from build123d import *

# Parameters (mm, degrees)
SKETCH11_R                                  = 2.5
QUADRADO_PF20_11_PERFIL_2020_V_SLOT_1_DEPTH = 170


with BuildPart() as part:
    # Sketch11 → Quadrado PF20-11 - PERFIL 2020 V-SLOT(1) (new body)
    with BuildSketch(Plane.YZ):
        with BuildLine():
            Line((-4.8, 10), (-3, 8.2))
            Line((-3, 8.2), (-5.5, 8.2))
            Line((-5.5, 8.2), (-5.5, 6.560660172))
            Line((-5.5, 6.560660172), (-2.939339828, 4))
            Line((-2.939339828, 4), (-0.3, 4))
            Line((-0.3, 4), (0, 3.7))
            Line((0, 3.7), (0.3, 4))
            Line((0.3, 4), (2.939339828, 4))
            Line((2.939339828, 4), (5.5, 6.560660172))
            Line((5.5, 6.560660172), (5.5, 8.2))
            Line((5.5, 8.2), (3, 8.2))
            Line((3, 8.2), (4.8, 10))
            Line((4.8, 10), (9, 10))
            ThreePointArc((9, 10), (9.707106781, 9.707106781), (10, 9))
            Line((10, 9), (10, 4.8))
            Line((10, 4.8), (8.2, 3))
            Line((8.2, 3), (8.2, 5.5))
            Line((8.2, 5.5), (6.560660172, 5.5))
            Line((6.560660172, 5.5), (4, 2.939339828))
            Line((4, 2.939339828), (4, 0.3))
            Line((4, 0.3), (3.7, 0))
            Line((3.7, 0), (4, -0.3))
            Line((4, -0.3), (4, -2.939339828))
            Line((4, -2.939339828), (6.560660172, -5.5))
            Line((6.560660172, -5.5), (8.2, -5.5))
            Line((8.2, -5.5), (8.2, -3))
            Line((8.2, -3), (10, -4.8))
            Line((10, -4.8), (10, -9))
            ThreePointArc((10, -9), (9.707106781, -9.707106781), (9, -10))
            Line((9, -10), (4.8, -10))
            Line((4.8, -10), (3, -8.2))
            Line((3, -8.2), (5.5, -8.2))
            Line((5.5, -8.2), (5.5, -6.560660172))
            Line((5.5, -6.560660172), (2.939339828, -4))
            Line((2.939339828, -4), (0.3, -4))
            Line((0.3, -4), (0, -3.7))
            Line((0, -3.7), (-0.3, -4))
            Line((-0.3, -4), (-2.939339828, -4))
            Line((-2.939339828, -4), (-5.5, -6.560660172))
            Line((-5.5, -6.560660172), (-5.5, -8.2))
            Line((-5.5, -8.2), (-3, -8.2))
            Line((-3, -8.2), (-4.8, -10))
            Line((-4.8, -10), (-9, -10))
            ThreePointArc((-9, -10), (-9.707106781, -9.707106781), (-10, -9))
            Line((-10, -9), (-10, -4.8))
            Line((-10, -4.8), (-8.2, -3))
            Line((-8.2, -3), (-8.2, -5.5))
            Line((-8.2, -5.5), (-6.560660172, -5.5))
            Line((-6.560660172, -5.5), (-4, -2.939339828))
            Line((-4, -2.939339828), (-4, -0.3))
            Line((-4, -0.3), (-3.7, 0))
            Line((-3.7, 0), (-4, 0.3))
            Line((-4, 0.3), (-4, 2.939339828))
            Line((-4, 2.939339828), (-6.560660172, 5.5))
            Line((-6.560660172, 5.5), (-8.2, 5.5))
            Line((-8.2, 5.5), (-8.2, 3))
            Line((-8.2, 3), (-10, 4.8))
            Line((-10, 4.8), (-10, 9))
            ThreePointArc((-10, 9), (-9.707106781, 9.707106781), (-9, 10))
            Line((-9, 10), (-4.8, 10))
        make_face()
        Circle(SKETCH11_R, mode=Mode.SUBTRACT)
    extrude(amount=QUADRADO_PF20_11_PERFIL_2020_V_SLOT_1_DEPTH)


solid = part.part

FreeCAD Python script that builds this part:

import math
import FreeCAD as App
import Part
import Sketcher
Q = App.Units.Quantity

doc = App.newDocument("Part")
body = doc.addObject("PartDesign::Body", "Body")

# Sketch on YZ plane
sketch1 = doc.addObject("Sketcher::SketchObject", "Sketch")
body.addObject(sketch1)
sketch1.AttachmentSupport = (doc.YZ_Plane, [""])
sketch1.MapMode = "FlatFace"
sketch1.addGeometry([
    Part.LineSegment(App.Vector(-3, 8.2, 0), App.Vector(-4.8, 10, 0)),  # 0
    Part.LineSegment(App.Vector(-4.8, 10, 0), App.Vector(-9, 10, 0)),  # 1
    Part.ArcOfCircle(Part.Circle(App.Vector(-9, 9, 0), App.Vector(0, 0, 1), 1), math.radians(90), math.radians(180)),  # 2
    Part.LineSegment(App.Vector(-10, 9, 0), App.Vector(-10, 4.8, 0)),  # 3
    Part.LineSegment(App.Vector(-10, 4.8, 0), App.Vector(-8.2, 3, 0)),  # 4
    Part.LineSegment(App.Vector(-8.2, 3, 0), App.Vector(-8.2, 5.5, 0)),  # 5
    Part.LineSegment(App.Vector(-8.2, 5.5, 0), App.Vector(-6.56066, 5.5, 0)),  # 6
    Part.LineSegment(App.Vector(-6.56066, 5.5, 0), App.Vector(-4, 2.93934, 0)),  # 7
    Part.LineSegment(App.Vector(-4, 2.93934, 0), App.Vector(-4, 0.3, 0)),  # 8
    Part.LineSegment(App.Vector(-4, 0.3, 0), App.Vector(-3.7, 0, 0)),  # 9
    Part.LineSegment(App.Vector(-3.7, 0, 0), App.Vector(-4, -0.3, 0)),  # 10
    Part.LineSegment(App.Vector(-4, -0.3, 0), App.Vector(-4, -2.93934, 0)),  # 11
    Part.LineSegment(App.Vector(-4, -2.93934, 0), App.Vector(-6.56066, -5.5, 0)),  # 12
    Part.LineSegment(App.Vector(-6.56066, -5.5, 0), App.Vector(-8.2, -5.5, 0)),  # 13
    Part.LineSegment(App.Vector(-8.2, -5.5, 0), App.Vector(-8.2, -3, 0)),  # 14
    Part.LineSegment(App.Vector(-8.2, -3, 0), App.Vector(-10, -4.8, 0)),  # 15
    Part.LineSegment(App.Vector(-10, -4.8, 0), App.Vector(-10, -9, 0)),  # 16
    Part.ArcOfCircle(Part.Circle(App.Vector(-9, -9, 0), App.Vector(0, 0, 1), 1), math.radians(-180), math.radians(-90)),  # 17
    Part.LineSegment(App.Vector(-9, -10, 0), App.Vector(-4.8, -10, 0)),  # 18
    Part.LineSegment(App.Vector(-4.8, -10, 0), App.Vector(-3, -8.2, 0)),  # 19
    Part.LineSegment(App.Vector(-3, -8.2, 0), App.Vector(-5.5, -8.2, 0)),  # 20
    Part.LineSegment(App.Vector(-5.5, -8.2, 0), App.Vector(-5.5, -6.56066, 0)),  # 21
    Part.LineSegment(App.Vector(-5.5, -6.56066, 0), App.Vector(-2.93934, -4, 0)),  # 22
    Part.LineSegment(App.Vector(-2.93934, -4, 0), App.Vector(-0.3, -4, 0)),  # 23
    Part.LineSegment(App.Vector(-0.3, -4, 0), App.Vector(0, -3.7, 0)),  # 24
    Part.LineSegment(App.Vector(0, -3.7, 0), App.Vector(0.3, -4, 0)),  # 25
    Part.LineSegment(App.Vector(0.3, -4, 0), App.Vector(2.93934, -4, 0)),  # 26
    Part.LineSegment(App.Vector(2.93934, -4, 0), App.Vector(5.5, -6.56066, 0)),  # 27
    Part.LineSegment(App.Vector(5.5, -6.56066, 0), App.Vector(5.5, -8.2, 0)),  # 28
    Part.LineSegment(App.Vector(5.5, -8.2, 0), App.Vector(3, -8.2, 0)),  # 29
    Part.LineSegment(App.Vector(3, -8.2, 0), App.Vector(4.8, -10, 0)),  # 30
    Part.LineSegment(App.Vector(4.8, -10, 0), App.Vector(9, -10, 0)),  # 31
    Part.ArcOfCircle(Part.Circle(App.Vector(9, -9, 0), App.Vector(0, 0, 1), 1), math.radians(-90), math.radians(0)),  # 32
    Part.LineSegment(App.Vector(10, -9, 0), App.Vector(10, -4.8, 0)),  # 33
    Part.LineSegment(App.Vector(10, -4.8, 0), App.Vector(8.2, -3, 0)),  # 34
    Part.LineSegment(App.Vector(8.2, -3, 0), App.Vector(8.2, -5.5, 0)),  # 35
    Part.LineSegment(App.Vector(8.2, -5.5, 0), App.Vector(6.56066, -5.5, 0)),  # 36
    Part.LineSegment(App.Vector(6.56066, -5.5, 0), App.Vector(4, -2.93934, 0)),  # 37
    Part.LineSegment(App.Vector(4, -2.93934, 0), App.Vector(4, -0.3, 0)),  # 38
    Part.LineSegment(App.Vector(4, -0.3, 0), App.Vector(3.7, 0, 0)),  # 39
    Part.LineSegment(App.Vector(3.7, 0, 0), App.Vector(4, 0.3, 0)),  # 40
    Part.LineSegment(App.Vector(4, 0.3, 0), App.Vector(4, 2.93934, 0)),  # 41
    Part.LineSegment(App.Vector(4, 2.93934, 0), App.Vector(6.56066, 5.5, 0)),  # 42
    Part.LineSegment(App.Vector(6.56066, 5.5, 0), App.Vector(8.2, 5.5, 0)),  # 43
    Part.LineSegment(App.Vector(8.2, 5.5, 0), App.Vector(8.2, 3, 0)),  # 44
    Part.LineSegment(App.Vector(8.2, 3, 0), App.Vector(10, 4.8, 0)),  # 45
    Part.LineSegment(App.Vector(10, 4.8, 0), App.Vector(10, 9, 0)),  # 46
    Part.ArcOfCircle(Part.Circle(App.Vector(9, 9, 0), App.Vector(0, 0, 1), 1), math.radians(0), math.radians(90)),  # 47
    Part.LineSegment(App.Vector(9, 10, 0), App.Vector(4.8, 10, 0)),  # 48
    Part.LineSegment(App.Vector(4.8, 10, 0), App.Vector(3, 8.2, 0)),  # 49
    Part.LineSegment(App.Vector(3, 8.2, 0), App.Vector(5.5, 8.2, 0)),  # 50
    Part.LineSegment(App.Vector(5.5, 8.2, 0), App.Vector(5.5, 6.56066, 0)),  # 51
    Part.LineSegment(App.Vector(5.5, 6.56066, 0), App.Vector(2.93934, 4, 0)),  # 52
    Part.LineSegment(App.Vector(2.93934, 4, 0), App.Vector(0.3, 4, 0)),  # 53
    Part.LineSegment(App.Vector(0.3, 4, 0), App.Vector(0, 3.7, 0)),  # 54
    Part.LineSegment(App.Vector(0, 3.7, 0), App.Vector(-0.3, 4, 0)),  # 55
    Part.LineSegment(App.Vector(-0.3, 4, 0), App.Vector(-2.93934, 4, 0)),  # 56
    Part.LineSegment(App.Vector(-2.93934, 4, 0), App.Vector(-5.5, 6.56066, 0)),  # 57
    Part.LineSegment(App.Vector(-5.5, 6.56066, 0), App.Vector(-5.5, 8.2, 0)),  # 58
    Part.LineSegment(App.Vector(-5.5, 8.2, 0), App.Vector(-3, 8.2, 0)),  # 59
    Part.Circle(App.Vector(0, 0, 0), App.Vector(0, 0, 1), 2.5),  # 60
], False)
sketch1.addConstraint([
    Sketcher.Constraint("Coincident", 0, 2, 1, 1),
    Sketcher.Constraint("Tangent", 1, 2, 2, 1),
    Sketcher.Constraint("Tangent", 2, 2, 3, 1),
    Sketcher.Constraint("Coincident", 3, 2, 4, 1),
    Sketcher.Constraint("Coincident", 4, 2, 5, 1),
    Sketcher.Constraint("Coincident", 5, 2, 6, 1),
    Sketcher.Constraint("Coincident", 6, 2, 7, 1),
    Sketcher.Constraint("Coincident", 7, 2, 8, 1),
    Sketcher.Constraint("Coincident", 8, 2, 9, 1),
    Sketcher.Constraint("Coincident", 9, 2, 10, 1),
    Sketcher.Constraint("Coincident", 10, 2, 11, 1),
    Sketcher.Constraint("Coincident", 11, 2, 12, 1),
    Sketcher.Constraint("Coincident", 12, 2, 13, 1),
    Sketcher.Constraint("Coincident", 13, 2, 14, 1),
    Sketcher.Constraint("Coincident", 14, 2, 15, 1),
    Sketcher.Constraint("Coincident", 15, 2, 16, 1),
    Sketcher.Constraint("Tangent", 16, 2, 17, 1),
    Sketcher.Constraint("Tangent", 17, 2, 18, 1),
    Sketcher.Constraint("Coincident", 18, 2, 19, 1),
    Sketcher.Constraint("Coincident", 19, 2, 20, 1),
    Sketcher.Constraint("Coincident", 20, 2, 21, 1),
    Sketcher.Constraint("Coincident", 21, 2, 22, 1),
    Sketcher.Constraint("Coincident", 22, 2, 23, 1),
    Sketcher.Constraint("Coincident", 23, 2, 24, 1),
    Sketcher.Constraint("Coincident", 24, 2, 25, 1),
    Sketcher.Constraint("Coincident", 25, 2, 26, 1),
    Sketcher.Constraint("Coincident", 26, 2, 27, 1),
    Sketcher.Constraint("Coincident", 27, 2, 28, 1),
    Sketcher.Constraint("Coincident", 28, 2, 29, 1),
    Sketcher.Constraint("Coincident", 29, 2, 30, 1),
    Sketcher.Constraint("Coincident", 30, 2, 31, 1),
    Sketcher.Constraint("Tangent", 31, 2, 32, 1),
    Sketcher.Constraint("Tangent", 32, 2, 33, 1),
    Sketcher.Constraint("Coincident", 33, 2, 34, 1),
    Sketcher.Constraint("Coincident", 34, 2, 35, 1),
    Sketcher.Constraint("Coincident", 35, 2, 36, 1),
    Sketcher.Constraint("Coincident", 36, 2, 37, 1),
    Sketcher.Constraint("Coincident", 37, 2, 38, 1),
    Sketcher.Constraint("Coincident", 38, 2, 39, 1),
    Sketcher.Constraint("Coincident", 39, 2, 40, 1),
    Sketcher.Constraint("Coincident", 40, 2, 41, 1),
    Sketcher.Constraint("Coincident", 41, 2, 42, 1),
    Sketcher.Constraint("Coincident", 42, 2, 43, 1),
    Sketcher.Constraint("Coincident", 43, 2, 44, 1),
    Sketcher.Constraint("Coincident", 44, 2, 45, 1),
    Sketcher.Constraint("Coincident", 45, 2, 46, 1),
    Sketcher.Constraint("Tangent", 46, 2, 47, 1),
    Sketcher.Constraint("Tangent", 47, 2, 48, 1),
    Sketcher.Constraint("Coincident", 48, 2, 49, 1),
    Sketcher.Constraint("Coincident", 49, 2, 50, 1),
    Sketcher.Constraint("Coincident", 50, 2, 51, 1),
    Sketcher.Constraint("Coincident", 51, 2, 52, 1),
    Sketcher.Constraint("Coincident", 52, 2, 53, 1),
    Sketcher.Constraint("Coincident", 53, 2, 54, 1),
    Sketcher.Constraint("Coincident", 54, 2, 55, 1),
    Sketcher.Constraint("Coincident", 55, 2, 56, 1),
    Sketcher.Constraint("Coincident", 56, 2, 57, 1),
    Sketcher.Constraint("Coincident", 57, 2, 58, 1),
    Sketcher.Constraint("Coincident", 58, 2, 59, 1),
    Sketcher.Constraint("Coincident", 59, 2, 0, 1),
    Sketcher.Constraint("Horizontal", 1),
    Sketcher.Constraint("Vertical", 3),
    Sketcher.Constraint("Vertical", 5),
    Sketcher.Constraint("Horizontal", 6),
    Sketcher.Constraint("Vertical", 8),
    Sketcher.Constraint("Vertical", 11),
    Sketcher.Constraint("Horizontal", 13),
    Sketcher.Constraint("Vertical", 14),
    Sketcher.Constraint("Vertical", 16),
    Sketcher.Constraint("Horizontal", 18),
    Sketcher.Constraint("Horizontal", 20),
    Sketcher.Constraint("Vertical", 21),
    Sketcher.Constraint("Horizontal", 23),
    Sketcher.Constraint("Horizontal", 26),
    Sketcher.Constraint("Vertical", 28),
    Sketcher.Constraint("Horizontal", 29),
    Sketcher.Constraint("Horizontal", 31),
    Sketcher.Constraint("Vertical", 33),
    Sketcher.Constraint("Vertical", 35),
    Sketcher.Constraint("Horizontal", 36),
    Sketcher.Constraint("Vertical", 38),
    Sketcher.Constraint("Vertical", 41),
    Sketcher.Constraint("Horizontal", 43),
    Sketcher.Constraint("Vertical", 44),
    Sketcher.Constraint("Vertical", 46),
    Sketcher.Constraint("Horizontal", 48),
    Sketcher.Constraint("Horizontal", 50),
    Sketcher.Constraint("Vertical", 51),
    Sketcher.Constraint("Horizontal", 53),
    Sketcher.Constraint("Horizontal", 56),
    Sketcher.Constraint("Vertical", 58),
    Sketcher.Constraint("Horizontal", 59),
    Sketcher.Constraint("Coincident", 60, 3, -1, 1),
    Sketcher.Constraint("Equal", 2, 17),
    Sketcher.Constraint("Equal", 17, 32),
    Sketcher.Constraint("Equal", 32, 47),
    Sketcher.Constraint("Symmetric", 2, 3, 32, 3, -1, 1),
    Sketcher.Constraint("Symmetric", 17, 3, 47, 3, -1, 1),
    Sketcher.Constraint("Symmetric", 4, 2, 34, 2, -1, 1),
    Sketcher.Constraint("Symmetric", 6, 2, 36, 2, -1, 1),
    Sketcher.Constraint("Symmetric", 7, 2, 37, 2, -1, 1),
    Sketcher.Constraint("Symmetric", 9, 2, 39, 2, -1, 1),
    Sketcher.Constraint("Symmetric", 10, 2, 40, 2, -1, 1),
    Sketcher.Constraint("Symmetric", 12, 2, 42, 2, -1, 1),
    Sketcher.Constraint("Symmetric", 14, 2, 44, 2, -1, 1),
    Sketcher.Constraint("Symmetric", 19, 2, 49, 2, -1, 1),
    Sketcher.Constraint("Symmetric", 21, 2, 51, 2, -1, 1),
    Sketcher.Constraint("Symmetric", 22, 2, 52, 2, -1, 1),
    Sketcher.Constraint("Symmetric", 24, 2, 54, 2, -1, 1),
    Sketcher.Constraint("Symmetric", 25, 2, 55, 2, -1, 1),
    Sketcher.Constraint("Symmetric", 27, 2, 57, 2, -1, 1),
    Sketcher.Constraint("Symmetric", 29, 2, 59, 2, -1, 1),
    Sketcher.Constraint("Symmetric", 17, 3, 32, 3, -2),
    Sketcher.Constraint("Symmetric", 23, 2, 25, 2, -2),
    Sketcher.Constraint("Symmetric", 21, 2, 27, 2, -2),
    Sketcher.Constraint("Symmetric", 19, 2, 29, 2, -2),
    Sketcher.Constraint("Symmetric", 14, 2, 34, 2, -2),
    Sketcher.Constraint("Symmetric", 12, 2, 36, 2, -2),
    Sketcher.Constraint("Symmetric", 11, 2, 37, 2, -2),
    Sketcher.Constraint("PointOnObject", 9, 2, -1),
    Sketcher.Constraint("PointOnObject", 24, 2, -2),
    Sketcher.Constraint("Parallel", 0, 4),
    Sketcher.Constraint("Parallel", 4, 7),
    Sketcher.Constraint("Parallel", 7, 9),
    Sketcher.Constraint("Perpendicular", 9, 10),
    Sketcher.Constraint("Parallel", 10, 12),
    Sketcher.Constraint("Parallel", 12, 15),
    Sketcher.Constraint("Parallel", 15, 19),
    Sketcher.Constraint("Parallel", 19, 22),
    Sketcher.Constraint("Parallel", 22, 24),
    Sketcher.Constraint("Parallel", 25, 27),
    Sketcher.Constraint("Parallel", 27, 30),
    Sketcher.Constraint("Parallel", 30, 34),
    Sketcher.Constraint("Parallel", 37, 39),
    Sketcher.Constraint("Parallel", 40, 42),
    Sketcher.Constraint("Parallel", 42, 45),
    Sketcher.Constraint("Parallel", 45, 49),
    Sketcher.Constraint("Parallel", 52, 54),
    Sketcher.Constraint("Parallel", 55, 57),
    Sketcher.Constraint("Equal", 48, 3),
    Sketcher.Constraint("Equal", 59, 5),
    Sketcher.Constraint("Equal", 56, 8),
    Sketcher.Constraint("Equal", 43, 21),
    Sketcher.Constraint("Equal", 0, 4),
    Sketcher.Constraint("Equal", 12, 22),
    Sketcher.Constraint("Equal", 10, 24),
    Sketcher.Constraint("Diameter", 60, Q("5 mm")),
    Sketcher.Constraint("Radius", 2, Q("1 mm")),
    Sketcher.Constraint("DistanceX", 1, 2, 1, 1, Q("4.2 mm")),
    Sketcher.Constraint("DistanceX", 20, 2, 20, 1, Q("2.5 mm")),
    Sketcher.Constraint("DistanceX", 2, 3, -1, 1, Q("9 mm")),
    Sketcher.Constraint("DistanceY", -1, 1, 4, 2, Q("3 mm")),
    Sketcher.Constraint("DistanceX", 7, 2, -1, 1, Q("4 mm")),
    Sketcher.Constraint("DistanceY", -1, 1, 8, 2, Q("0.3 mm")),
    Sketcher.Constraint("DistanceX", 6, 1, 6, 2, Q("1.63934 mm")),
])
pad1 = doc.addObject("PartDesign::Pad", "Pad")
body.addObject(pad1)
pad1.Profile = sketch1
pad1.Length = 170

doc.recompute()
